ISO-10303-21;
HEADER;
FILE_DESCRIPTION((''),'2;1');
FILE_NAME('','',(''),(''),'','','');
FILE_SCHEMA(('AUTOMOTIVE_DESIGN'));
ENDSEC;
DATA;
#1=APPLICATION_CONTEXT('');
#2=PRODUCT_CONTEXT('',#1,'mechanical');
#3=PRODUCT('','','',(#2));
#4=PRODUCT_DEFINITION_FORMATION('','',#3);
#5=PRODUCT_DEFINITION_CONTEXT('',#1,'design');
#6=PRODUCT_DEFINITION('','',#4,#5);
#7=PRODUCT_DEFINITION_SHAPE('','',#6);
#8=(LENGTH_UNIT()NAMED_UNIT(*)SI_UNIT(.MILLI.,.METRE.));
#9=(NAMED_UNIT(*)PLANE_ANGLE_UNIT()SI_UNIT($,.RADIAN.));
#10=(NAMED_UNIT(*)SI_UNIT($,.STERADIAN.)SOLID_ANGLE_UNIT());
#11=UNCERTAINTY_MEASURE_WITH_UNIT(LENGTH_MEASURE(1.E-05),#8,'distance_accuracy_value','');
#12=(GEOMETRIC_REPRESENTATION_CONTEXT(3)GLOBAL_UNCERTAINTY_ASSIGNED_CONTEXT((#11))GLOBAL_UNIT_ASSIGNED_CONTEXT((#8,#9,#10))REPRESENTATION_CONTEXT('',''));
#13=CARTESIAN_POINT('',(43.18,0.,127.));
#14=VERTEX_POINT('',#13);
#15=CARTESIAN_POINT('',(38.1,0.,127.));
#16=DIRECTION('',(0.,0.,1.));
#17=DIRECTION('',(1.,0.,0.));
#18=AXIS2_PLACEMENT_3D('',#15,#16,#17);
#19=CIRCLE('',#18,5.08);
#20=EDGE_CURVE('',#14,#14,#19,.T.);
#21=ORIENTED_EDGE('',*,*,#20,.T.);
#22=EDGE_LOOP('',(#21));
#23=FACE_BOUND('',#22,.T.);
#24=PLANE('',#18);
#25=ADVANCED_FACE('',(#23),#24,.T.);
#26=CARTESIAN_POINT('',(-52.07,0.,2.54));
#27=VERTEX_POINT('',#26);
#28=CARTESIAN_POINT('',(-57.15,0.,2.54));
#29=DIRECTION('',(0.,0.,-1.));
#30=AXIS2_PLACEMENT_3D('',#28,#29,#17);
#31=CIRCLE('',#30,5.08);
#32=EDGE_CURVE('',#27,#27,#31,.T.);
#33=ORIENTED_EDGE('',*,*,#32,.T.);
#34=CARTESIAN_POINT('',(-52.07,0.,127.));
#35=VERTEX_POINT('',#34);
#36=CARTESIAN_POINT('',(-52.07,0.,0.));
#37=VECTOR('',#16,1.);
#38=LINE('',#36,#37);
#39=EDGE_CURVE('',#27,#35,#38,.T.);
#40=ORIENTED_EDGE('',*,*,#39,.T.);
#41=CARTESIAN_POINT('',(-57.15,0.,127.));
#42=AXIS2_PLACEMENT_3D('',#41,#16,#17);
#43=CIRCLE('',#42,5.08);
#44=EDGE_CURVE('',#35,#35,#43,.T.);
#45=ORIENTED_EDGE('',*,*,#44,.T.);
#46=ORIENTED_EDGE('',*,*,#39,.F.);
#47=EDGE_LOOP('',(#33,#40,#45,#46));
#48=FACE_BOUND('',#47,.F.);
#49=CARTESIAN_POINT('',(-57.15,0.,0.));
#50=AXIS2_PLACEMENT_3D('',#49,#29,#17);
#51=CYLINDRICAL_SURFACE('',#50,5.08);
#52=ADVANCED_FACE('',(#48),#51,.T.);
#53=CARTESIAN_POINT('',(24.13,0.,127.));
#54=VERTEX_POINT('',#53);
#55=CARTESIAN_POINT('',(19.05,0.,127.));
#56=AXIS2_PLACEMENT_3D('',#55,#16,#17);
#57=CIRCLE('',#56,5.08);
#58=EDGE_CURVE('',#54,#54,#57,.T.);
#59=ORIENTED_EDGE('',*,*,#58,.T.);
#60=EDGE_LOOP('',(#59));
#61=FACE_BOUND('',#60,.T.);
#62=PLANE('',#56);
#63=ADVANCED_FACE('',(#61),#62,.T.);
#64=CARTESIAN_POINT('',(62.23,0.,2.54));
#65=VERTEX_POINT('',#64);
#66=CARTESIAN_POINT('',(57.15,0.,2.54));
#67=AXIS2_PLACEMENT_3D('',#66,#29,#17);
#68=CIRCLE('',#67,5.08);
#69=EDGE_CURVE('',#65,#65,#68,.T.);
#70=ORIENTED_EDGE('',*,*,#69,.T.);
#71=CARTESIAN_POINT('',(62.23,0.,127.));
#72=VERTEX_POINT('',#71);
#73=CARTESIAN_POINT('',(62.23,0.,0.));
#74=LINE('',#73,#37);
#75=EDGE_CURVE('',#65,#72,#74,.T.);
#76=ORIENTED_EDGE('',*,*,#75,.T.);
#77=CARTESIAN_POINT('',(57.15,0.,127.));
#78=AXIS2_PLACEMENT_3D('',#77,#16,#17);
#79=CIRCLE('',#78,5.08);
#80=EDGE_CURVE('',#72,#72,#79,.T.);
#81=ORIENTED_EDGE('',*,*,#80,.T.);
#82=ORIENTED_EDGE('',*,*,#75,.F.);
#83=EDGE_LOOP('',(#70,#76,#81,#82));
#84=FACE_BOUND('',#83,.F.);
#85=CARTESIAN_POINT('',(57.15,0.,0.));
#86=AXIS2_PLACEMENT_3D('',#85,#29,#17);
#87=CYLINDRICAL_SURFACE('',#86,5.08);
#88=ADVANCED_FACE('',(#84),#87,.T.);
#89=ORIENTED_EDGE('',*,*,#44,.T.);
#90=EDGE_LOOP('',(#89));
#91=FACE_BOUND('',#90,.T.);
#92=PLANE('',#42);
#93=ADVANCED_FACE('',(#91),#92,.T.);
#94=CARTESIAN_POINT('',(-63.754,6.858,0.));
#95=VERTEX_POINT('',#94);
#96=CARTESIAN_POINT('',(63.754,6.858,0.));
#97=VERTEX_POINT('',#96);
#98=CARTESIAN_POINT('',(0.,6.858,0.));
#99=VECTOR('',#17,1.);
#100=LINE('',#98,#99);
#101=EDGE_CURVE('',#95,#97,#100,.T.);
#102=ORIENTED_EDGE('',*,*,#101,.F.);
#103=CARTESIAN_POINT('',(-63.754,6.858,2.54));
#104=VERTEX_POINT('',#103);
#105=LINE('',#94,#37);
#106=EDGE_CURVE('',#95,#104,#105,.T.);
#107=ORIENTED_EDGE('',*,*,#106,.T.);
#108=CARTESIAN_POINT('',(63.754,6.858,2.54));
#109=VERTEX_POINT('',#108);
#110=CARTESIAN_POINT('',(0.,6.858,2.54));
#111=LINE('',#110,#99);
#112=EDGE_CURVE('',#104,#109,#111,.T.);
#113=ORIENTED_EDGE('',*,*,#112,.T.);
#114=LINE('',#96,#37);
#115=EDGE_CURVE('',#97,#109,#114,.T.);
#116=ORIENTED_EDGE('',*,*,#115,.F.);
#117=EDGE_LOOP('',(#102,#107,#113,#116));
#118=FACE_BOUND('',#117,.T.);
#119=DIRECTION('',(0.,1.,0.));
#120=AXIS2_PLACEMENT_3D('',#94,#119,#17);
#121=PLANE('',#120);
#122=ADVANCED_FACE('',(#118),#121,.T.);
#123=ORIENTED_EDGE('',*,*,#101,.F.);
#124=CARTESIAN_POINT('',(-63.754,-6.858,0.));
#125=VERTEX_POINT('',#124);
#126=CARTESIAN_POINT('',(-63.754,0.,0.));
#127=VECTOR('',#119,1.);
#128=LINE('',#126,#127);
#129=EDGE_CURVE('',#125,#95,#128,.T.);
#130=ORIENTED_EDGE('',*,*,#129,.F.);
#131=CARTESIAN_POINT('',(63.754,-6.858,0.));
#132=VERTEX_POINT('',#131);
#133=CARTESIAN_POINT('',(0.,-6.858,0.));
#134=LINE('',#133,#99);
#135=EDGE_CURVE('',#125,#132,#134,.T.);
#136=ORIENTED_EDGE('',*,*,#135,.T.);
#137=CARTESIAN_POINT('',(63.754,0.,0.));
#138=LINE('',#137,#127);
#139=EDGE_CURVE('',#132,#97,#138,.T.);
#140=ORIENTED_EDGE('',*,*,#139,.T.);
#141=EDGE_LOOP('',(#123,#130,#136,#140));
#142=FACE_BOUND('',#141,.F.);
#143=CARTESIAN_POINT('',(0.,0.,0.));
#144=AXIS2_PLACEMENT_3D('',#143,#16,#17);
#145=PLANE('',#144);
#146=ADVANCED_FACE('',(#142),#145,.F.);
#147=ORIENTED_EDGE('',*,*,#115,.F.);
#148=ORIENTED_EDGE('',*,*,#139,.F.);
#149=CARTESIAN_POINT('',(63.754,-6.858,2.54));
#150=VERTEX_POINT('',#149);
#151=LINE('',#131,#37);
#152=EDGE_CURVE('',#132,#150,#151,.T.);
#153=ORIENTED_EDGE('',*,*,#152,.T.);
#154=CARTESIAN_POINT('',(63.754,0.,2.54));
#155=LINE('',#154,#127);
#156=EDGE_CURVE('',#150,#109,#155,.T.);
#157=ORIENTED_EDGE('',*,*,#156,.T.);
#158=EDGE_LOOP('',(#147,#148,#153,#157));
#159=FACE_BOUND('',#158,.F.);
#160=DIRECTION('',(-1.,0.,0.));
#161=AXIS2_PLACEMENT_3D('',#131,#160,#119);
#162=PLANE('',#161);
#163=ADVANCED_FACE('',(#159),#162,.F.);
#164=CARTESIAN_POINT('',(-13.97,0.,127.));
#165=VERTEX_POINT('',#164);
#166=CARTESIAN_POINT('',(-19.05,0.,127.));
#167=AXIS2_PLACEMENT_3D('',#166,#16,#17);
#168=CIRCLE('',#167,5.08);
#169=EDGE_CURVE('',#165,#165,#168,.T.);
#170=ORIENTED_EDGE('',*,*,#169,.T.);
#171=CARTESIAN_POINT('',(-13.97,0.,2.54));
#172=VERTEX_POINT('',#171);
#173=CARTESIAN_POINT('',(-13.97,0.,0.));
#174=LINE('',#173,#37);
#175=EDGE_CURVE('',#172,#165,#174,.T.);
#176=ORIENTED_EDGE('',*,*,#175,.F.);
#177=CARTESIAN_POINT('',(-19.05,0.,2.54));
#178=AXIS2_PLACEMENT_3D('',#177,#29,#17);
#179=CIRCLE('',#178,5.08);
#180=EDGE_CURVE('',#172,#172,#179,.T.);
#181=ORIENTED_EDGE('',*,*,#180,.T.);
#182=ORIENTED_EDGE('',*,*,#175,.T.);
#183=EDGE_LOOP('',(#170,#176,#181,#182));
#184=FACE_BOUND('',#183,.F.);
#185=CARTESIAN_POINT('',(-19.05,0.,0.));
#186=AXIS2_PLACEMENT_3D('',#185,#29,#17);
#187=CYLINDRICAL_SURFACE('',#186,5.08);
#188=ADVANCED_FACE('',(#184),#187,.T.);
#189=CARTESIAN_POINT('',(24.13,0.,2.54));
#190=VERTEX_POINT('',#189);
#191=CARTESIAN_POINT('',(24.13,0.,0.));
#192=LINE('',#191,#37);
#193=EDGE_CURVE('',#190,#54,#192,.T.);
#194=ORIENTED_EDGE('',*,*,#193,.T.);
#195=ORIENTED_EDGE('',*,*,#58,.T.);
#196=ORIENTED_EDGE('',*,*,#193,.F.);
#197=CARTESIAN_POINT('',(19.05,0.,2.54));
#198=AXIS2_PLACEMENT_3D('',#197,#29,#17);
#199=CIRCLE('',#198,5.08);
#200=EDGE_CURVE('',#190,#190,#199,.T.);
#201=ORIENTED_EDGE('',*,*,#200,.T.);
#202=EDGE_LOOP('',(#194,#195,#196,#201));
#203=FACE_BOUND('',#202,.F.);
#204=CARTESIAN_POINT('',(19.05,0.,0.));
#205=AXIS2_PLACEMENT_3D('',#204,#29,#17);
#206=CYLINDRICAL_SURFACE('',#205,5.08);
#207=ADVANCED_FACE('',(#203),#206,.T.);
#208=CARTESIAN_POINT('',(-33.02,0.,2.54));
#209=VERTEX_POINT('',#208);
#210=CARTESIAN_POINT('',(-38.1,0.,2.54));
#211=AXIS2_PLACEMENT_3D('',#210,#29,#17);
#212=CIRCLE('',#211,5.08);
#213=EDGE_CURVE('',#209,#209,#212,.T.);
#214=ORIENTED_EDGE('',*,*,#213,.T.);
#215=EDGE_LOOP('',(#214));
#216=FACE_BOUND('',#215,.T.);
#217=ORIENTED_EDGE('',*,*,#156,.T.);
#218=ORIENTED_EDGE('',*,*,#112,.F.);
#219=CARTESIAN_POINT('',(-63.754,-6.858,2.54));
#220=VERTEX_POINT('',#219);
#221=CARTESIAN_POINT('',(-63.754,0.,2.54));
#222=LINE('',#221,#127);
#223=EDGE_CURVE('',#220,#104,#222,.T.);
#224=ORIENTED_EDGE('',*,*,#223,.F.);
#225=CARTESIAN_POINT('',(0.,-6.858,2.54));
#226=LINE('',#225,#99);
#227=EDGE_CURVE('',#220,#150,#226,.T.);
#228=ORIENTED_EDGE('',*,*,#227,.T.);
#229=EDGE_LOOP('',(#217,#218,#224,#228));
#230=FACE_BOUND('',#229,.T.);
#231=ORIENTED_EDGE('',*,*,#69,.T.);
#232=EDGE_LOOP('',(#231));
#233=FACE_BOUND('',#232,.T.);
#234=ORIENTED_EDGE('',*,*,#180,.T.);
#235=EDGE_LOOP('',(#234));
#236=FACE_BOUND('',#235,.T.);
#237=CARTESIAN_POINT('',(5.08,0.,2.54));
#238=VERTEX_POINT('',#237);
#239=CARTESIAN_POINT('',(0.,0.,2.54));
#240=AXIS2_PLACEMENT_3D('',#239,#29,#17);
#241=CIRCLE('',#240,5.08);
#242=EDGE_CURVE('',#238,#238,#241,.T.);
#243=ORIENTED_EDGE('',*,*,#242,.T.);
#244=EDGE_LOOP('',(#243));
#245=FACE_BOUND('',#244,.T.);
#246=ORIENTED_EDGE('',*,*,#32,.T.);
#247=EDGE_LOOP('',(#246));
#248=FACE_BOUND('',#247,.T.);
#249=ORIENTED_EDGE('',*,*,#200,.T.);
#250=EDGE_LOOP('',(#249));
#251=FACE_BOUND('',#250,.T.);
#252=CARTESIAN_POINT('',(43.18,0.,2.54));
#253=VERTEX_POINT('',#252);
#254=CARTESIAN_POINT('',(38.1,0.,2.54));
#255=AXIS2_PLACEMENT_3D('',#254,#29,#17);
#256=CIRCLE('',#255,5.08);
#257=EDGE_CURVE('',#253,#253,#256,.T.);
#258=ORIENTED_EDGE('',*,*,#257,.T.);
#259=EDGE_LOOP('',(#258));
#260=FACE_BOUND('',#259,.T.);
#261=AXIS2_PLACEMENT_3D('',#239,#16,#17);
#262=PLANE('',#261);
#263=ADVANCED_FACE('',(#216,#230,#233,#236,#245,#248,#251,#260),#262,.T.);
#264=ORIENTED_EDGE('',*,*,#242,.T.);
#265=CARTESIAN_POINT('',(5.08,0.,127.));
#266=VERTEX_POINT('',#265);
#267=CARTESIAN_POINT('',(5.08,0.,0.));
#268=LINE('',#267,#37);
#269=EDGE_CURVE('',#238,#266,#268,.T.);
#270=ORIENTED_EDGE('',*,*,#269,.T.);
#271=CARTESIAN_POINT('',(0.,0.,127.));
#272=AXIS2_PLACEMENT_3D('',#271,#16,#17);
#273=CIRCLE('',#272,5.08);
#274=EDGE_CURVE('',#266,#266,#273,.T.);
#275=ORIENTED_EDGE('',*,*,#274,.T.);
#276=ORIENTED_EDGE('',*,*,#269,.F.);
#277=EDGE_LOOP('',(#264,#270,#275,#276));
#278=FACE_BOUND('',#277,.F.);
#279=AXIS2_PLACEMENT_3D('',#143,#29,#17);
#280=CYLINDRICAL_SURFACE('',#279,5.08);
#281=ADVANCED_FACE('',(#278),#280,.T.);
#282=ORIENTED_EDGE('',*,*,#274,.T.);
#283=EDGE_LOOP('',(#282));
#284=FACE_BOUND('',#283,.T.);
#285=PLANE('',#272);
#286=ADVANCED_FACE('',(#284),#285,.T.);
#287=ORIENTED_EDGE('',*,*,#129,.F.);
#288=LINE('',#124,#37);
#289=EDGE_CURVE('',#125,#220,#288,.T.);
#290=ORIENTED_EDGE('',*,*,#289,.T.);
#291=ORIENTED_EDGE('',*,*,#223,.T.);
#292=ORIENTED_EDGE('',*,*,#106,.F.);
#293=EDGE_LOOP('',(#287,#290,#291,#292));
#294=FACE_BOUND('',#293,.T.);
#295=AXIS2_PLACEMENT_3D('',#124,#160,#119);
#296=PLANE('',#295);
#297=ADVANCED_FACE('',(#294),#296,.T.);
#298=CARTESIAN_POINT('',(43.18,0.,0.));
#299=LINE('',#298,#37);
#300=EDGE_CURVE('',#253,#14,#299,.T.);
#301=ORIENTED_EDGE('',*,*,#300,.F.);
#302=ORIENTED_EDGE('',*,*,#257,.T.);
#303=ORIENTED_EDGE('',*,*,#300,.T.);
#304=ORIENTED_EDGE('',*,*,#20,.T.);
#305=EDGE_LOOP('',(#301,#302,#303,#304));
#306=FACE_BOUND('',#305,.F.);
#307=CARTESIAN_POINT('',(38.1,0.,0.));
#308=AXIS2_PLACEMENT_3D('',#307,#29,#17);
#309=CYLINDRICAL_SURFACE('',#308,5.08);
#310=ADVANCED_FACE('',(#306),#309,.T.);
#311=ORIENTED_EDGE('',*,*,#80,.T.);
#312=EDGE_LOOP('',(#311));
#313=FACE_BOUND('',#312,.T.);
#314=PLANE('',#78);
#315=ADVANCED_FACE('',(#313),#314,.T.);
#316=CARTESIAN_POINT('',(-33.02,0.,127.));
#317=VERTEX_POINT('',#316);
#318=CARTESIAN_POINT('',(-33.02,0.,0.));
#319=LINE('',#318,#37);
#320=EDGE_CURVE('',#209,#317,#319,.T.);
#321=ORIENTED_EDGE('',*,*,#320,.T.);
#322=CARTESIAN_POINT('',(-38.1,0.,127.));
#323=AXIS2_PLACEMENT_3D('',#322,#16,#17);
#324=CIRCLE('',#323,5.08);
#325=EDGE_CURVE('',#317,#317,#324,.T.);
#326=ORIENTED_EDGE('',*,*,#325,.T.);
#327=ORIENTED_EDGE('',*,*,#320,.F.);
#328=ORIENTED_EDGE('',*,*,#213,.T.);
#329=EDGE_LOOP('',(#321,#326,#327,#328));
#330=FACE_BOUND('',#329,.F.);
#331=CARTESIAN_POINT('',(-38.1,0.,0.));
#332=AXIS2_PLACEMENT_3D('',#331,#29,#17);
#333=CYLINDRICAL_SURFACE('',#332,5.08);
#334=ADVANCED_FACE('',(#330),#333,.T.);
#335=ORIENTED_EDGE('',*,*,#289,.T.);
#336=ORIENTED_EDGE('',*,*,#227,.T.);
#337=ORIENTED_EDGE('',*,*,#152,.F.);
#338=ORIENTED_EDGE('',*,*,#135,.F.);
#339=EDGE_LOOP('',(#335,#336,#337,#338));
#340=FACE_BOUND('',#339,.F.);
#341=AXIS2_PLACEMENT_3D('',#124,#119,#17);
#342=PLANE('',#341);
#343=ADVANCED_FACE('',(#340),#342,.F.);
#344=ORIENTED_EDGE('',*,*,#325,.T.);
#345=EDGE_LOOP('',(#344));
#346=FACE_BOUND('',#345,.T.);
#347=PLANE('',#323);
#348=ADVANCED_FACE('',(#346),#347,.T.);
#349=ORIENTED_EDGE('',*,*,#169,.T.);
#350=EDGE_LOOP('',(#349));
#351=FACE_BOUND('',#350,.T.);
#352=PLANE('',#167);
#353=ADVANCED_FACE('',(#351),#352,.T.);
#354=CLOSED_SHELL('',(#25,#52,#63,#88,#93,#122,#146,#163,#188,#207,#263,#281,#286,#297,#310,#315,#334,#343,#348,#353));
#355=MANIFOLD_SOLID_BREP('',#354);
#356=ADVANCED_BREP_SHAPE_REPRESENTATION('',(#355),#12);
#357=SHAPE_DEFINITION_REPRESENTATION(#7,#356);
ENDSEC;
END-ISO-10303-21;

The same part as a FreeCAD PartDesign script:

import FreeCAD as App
import Part
import Sketcher
Q = App.Units.Quantity

doc = App.newDocument("Part")
body = doc.addObject("PartDesign::Body", "Body")

sketch1 = body.newObject("Sketcher::SketchObject", "Sketch")
sketch1.AttachmentSupport = (doc.getObject("XY_Plane"), [""])
sketch1.MapMode = "FlatFace"
sketch1.addGeometry([
    Part.LineSegment(App.Vector(-64, 7, 0), App.Vector(-64, -7, 0)),
    Part.LineSegment(App.Vector(-64, -7, 0), App.Vector(64, -7, 0)),
    Part.LineSegment(App.Vector(64, -7, 0), App.Vector(64, 7, 0)),
    Part.LineSegment(App.Vector(64, 7, 0), App.Vector(-64, 7, 0)),
], False)
sketch1.addConstraint([
    Sketcher.Constraint("Coincident", 0, 2, 1, 1),
    Sketcher.Constraint("Coincident", 1, 2, 2, 1),
    Sketcher.Constraint("Coincident", 2, 2, 3, 1),
    Sketcher.Constraint("Coincident", 3, 2, 0, 1),
    Sketcher.Constraint("Vertical", 0),
    Sketcher.Constraint("Horizontal", 1),
    Sketcher.Constraint("Vertical", 2),
    Sketcher.Constraint("Horizontal", 3),
    Sketcher.Constraint("Symmetric", 0, 2, 2, 2, -1, 1),
    Sketcher.Constraint("DistanceX", 1, 1, 1, 2, Q("5.02 in")),
    Sketcher.Constraint("DistanceY", 0, 2, 0, 1, Q("0.54 in")),
])
pad1 = body.newObject("PartDesign::Pad", "Pad")
pad1.Profile = sketch1
pad1.Length = Q("0.1 in")

sketch2 = body.newObject("Sketcher::SketchObject", "Sketch001")
sketch2.AttachmentSupport = (doc.getObject("XY_Plane"), [""])
sketch2.MapMode = "FlatFace"
sketch2.addGeometry([
    Part.Circle(App.Vector(0, 0, 0), App.Vector(0, 0, 1), 5),
    Part.Circle(App.Vector(19, 0, 0), App.Vector(0, 0, 1), 5),
    Part.Circle(App.Vector(38, 0, 0), App.Vector(0, 0, 1), 5),
    Part.Circle(App.Vector(57, 0, 0), App.Vector(0, 0, 1), 5),
    Part.Circle(App.Vector(-19, 0, 0), App.Vector(0, 0, 1), 5),
    Part.Circle(App.Vector(-38, 0, 0), App.Vector(0, 0, 1), 5),
    Part.Circle(App.Vector(-57, 0, 0), App.Vector(0, 0, 1), 5),
], False)
sketch2.addConstraint([
    Sketcher.Constraint("Coincident", 0, 3, -1, 1),
    Sketcher.Constraint("Equal", 0, 1),
    Sketcher.Constraint("Equal", 1, 2),
    Sketcher.Constraint("Equal", 2, 3),
    Sketcher.Constraint("Equal", 3, 4),
    Sketcher.Constraint("Equal", 4, 5),
    Sketcher.Constraint("Equal", 5, 6),
    Sketcher.Constraint("Symmetric", 1, 3, 4, 3, -1, 1),
    Sketcher.Constraint("Symmetric", 2, 3, 5, 3, -1, 1),
    Sketcher.Constraint("Symmetric", 3, 3, 6, 3, -1, 1),
    Sketcher.Constraint("PointOnObject", 1, 3, -1),
    Sketcher.Constraint("PointOnObject", 2, 3, -1),
    Sketcher.Constraint("PointOnObject", 3, 3, -1),
    Sketcher.Constraint("Diameter", 0, Q("0.4 in")),
    Sketcher.Constraint("DistanceX", 4, 3, 3, 3, Q("3 in")),
    Sketcher.Constraint("DistanceX", 5, 3, 2, 3, Q("3 in")),
    Sketcher.Constraint("DistanceX", 1, 3, 3, 3, Q("1.5 in")),
])
pad2 = body.newObject("PartDesign::Pad", "Pad001")
pad2.Profile = sketch2
pad2.Length = Q("5 in")

doc.recompute()
